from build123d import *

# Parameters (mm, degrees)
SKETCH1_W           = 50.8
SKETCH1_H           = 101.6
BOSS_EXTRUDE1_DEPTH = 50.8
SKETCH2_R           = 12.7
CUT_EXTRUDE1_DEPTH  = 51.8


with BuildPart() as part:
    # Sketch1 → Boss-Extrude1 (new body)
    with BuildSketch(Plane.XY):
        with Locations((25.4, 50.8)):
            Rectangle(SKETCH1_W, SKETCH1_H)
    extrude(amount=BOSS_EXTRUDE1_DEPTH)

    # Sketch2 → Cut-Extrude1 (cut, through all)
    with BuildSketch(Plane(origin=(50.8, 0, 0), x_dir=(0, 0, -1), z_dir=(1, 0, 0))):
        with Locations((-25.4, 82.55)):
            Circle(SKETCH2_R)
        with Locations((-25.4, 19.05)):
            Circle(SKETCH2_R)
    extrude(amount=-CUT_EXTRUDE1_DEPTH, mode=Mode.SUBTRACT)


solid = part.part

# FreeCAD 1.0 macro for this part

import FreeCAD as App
import Part
import Sketcher
from FreeCAD import Vector
Q = App.Units.Quantity


def add_polygon(sketch, points):
    """Adds a closed chain of lines whose ends are joined by coincident constraints."""
    first, n = sketch.GeometryCount, len(points)
    for a, b in zip(points, points[1:] + points[:1]):
        sketch.addGeometry(Part.LineSegment(App.Vector(*a, 0), App.Vector(*b, 0)), False)
    for i in range(n):
        sketch.addConstraint(Sketcher.Constraint("Coincident", first + i, 2, first + (i + 1) % n, 1))

doc = App.newDocument("Part")
body = doc.addObject("PartDesign::Body", "Body")

# Sketch on XY plane
sketch1 = doc.addObject("Sketcher::SketchObject", "Sketch")
body.addObject(sketch1)
sketch1.AttachmentSupport = (doc.XY_Plane, [""])
sketch1.MapMode = "FlatFace"
add_polygon(sketch1, [(0, 102), (0, 0), (51, 0), (51, 102)])  # lines 0-3
sketch1.addConstraint(Sketcher.Constraint("Vertical", 0))
sketch1.addConstraint(Sketcher.Constraint("Horizontal", 1))
sketch1.addConstraint(Sketcher.Constraint("Vertical", 2))
sketch1.addConstraint(Sketcher.Constraint("Horizontal", 3))
sketch1.addConstraint(Sketcher.Constraint("Coincident", 0, 2, -1, 1))
sketch1.addConstraint(Sketcher.Constraint("DistanceX", 1, 1, 1, 2, Q("2 in")))
sketch1.addConstraint(Sketcher.Constraint("DistanceY", 0, 2, 0, 1, Q("4 in")))
pad1 = doc.addObject("PartDesign::Pad", "Pad")
body.addObject(pad1)
pad1.Profile = sketch1
pad1.Length = Q("2 in")

# Sketch on YZ plane
sketch2 = doc.addObject("Sketcher::SketchObject", "Sketch001")
body.addObject(sketch2)
sketch2.AttachmentSupport = (doc.YZ_Plane, [""])
sketch2.MapMode = "FlatFace"
sketch2.AttachmentOffset = App.Placement(Vector(0, 0, 2 * 25.4), App.Rotation())
sketch2.addGeometry(Part.Circle(Vector(83, 25, 0), Vector(0, 0, 1), 13), False)
sketch2.addGeometry(Part.Circle(Vector(19, 25, 0), Vector(0, 0, 1), 13), False)
sketch2.addConstraint(Sketcher.Constraint("Equal", 0, 1))
sketch2.addConstraint(Sketcher.Constraint("Horizontal", 0, 3, 1, 3))
sketch2.addConstraint(Sketcher.Constraint("Diameter", 0, Q("1 in")))
sketch2.addConstraint(Sketcher.Constraint("DistanceY", -1, 1, 0, 3, Q("1 in")))
sketch2.addConstraint(Sketcher.Constraint("DistanceX", 1, 3, 0, 3, Q("2.5 in")))
sketch2.addConstraint(Sketcher.Constraint("DistanceX", -1, 1, 0, 3, Q("3.25 in")))
pocket1 = doc.addObject("PartDesign::Pocket", "Pocket")
body.addObject(pocket1)
pocket1.Profile = sketch2
pocket1.Type = "ThroughAll"

doc.recompute()
